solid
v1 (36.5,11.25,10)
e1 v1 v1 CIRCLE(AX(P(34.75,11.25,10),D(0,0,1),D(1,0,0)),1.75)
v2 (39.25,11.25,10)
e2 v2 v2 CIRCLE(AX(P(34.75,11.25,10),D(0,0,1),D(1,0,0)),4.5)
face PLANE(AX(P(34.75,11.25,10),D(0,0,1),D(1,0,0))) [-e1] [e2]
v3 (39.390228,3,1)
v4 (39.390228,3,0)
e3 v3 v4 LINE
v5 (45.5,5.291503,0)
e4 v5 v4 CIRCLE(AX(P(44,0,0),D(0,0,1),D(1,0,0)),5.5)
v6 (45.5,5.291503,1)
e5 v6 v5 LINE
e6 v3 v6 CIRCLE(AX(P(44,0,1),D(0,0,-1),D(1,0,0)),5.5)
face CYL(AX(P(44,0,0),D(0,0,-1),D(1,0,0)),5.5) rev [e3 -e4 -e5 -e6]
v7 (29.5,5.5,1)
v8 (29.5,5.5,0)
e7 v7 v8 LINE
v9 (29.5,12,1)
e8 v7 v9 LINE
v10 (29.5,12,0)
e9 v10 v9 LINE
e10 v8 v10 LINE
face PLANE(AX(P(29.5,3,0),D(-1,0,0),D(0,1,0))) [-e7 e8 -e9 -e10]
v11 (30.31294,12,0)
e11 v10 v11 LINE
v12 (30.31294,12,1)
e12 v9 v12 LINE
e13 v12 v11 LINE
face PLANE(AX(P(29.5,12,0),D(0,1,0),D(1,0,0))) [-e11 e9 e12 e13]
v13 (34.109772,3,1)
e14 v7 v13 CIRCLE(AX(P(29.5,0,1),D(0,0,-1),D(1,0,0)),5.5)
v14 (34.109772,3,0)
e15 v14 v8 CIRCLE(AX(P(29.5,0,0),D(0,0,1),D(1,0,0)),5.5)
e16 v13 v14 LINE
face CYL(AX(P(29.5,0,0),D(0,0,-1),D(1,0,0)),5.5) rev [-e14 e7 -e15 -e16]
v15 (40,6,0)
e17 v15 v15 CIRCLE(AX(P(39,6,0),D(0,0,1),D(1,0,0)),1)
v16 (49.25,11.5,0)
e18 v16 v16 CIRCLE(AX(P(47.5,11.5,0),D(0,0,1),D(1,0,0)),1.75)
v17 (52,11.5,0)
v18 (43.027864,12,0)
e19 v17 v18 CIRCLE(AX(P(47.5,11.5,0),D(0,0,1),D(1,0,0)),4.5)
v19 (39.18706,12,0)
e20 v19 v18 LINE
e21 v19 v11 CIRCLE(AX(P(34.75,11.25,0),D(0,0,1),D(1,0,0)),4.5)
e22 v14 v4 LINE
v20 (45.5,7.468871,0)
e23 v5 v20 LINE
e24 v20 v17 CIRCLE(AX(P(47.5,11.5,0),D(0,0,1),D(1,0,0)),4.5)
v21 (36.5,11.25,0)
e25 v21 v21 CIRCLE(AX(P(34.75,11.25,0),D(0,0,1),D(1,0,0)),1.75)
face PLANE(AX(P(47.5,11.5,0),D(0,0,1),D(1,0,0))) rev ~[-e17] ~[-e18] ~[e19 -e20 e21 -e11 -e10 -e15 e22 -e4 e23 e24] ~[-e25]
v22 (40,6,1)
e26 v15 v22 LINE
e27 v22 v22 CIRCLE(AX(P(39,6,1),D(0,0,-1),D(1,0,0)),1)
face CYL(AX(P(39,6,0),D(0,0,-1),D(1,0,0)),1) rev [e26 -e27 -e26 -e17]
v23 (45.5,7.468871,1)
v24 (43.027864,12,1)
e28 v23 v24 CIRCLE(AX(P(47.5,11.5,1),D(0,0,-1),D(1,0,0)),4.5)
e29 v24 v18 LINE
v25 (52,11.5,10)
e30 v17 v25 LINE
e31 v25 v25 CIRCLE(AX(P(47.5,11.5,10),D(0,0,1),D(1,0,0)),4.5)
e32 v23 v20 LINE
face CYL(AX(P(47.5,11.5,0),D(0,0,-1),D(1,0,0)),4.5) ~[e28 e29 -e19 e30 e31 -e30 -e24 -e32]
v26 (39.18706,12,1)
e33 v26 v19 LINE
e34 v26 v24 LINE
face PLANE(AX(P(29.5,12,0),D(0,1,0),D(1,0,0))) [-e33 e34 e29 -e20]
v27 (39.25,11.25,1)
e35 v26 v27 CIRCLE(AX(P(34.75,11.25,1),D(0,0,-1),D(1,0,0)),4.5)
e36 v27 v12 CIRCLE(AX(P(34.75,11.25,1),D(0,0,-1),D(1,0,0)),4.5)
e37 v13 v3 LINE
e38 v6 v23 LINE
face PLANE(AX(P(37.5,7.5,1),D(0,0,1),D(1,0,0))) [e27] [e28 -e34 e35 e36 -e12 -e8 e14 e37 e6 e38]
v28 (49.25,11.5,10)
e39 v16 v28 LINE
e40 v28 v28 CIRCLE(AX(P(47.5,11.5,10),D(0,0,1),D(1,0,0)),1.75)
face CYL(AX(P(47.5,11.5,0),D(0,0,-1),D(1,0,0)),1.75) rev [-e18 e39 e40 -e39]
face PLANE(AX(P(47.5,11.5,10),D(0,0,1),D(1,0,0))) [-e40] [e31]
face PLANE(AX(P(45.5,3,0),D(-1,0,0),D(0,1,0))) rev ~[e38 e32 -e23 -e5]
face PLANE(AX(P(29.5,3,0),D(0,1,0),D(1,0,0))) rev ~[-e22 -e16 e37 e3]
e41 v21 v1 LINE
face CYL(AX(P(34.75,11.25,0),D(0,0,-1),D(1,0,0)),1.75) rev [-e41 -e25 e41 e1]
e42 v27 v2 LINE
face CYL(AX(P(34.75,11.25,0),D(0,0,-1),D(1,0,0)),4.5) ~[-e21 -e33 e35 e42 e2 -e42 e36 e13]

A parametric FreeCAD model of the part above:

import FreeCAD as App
import Part
import Sketcher

doc = App.newDocument("Part")
body = doc.addObject("PartDesign::Body", "Body")

sketch1 = body.newObject("Sketcher::SketchObject", "Sketch")
sketch1.AttachmentSupport = (doc.getObject("XY_Plane"), [""])
sketch1.MapMode = "FlatFace"
sketch1.addGeometry(Part.Circle(App.Vector(9, 6, 0), App.Vector(0, 0, 1), 1), False)
sketch1.addConstraint([
    Sketcher.Constraint("Diameter", 0, 2.0),
    Sketcher.Constraint("DistanceX", -1, 1, 0, 3, 9.0),
    Sketcher.Constraint("DistanceY", -1, 1, 0, 3, 6.0),
])
pad1 = body.newObject("PartDesign::Pad", "Pad")
pad1.Profile = sketch1
pad1.Length = 10
body2 = doc.addObject("PartDesign::Body", "Body001")

sketch2 = body2.newObject("Sketcher::SketchObject", "Sketch001")
sketch2.AttachmentSupport = (doc.getObject("XY_Plane001"), [""])
sketch2.MapMode = "FlatFace"
sketch2.addGeometry(Part.Circle(App.Vector(14, 0, 0), App.Vector(0, 0, 1), 6), False)
sketch2.addConstraint([
    Sketcher.Constraint("PointOnObject", 0, 3, -1),
    Sketcher.Constraint("Diameter", 0, 11.0),
    Sketcher.Constraint("DistanceX", -1, 1, 0, 3, 14.0),
])
pad2 = body2.newObject("PartDesign::Pad", "Pad001")
pad2.Profile = sketch2
pad2.Length = 10
body3 = doc.addObject("PartDesign::Body", "Body002")

sketch3 = body3.newObject("Sketcher::SketchObject", "Sketch002")
sketch3.AttachmentSupport = (doc.getObject("XY_Plane002"), [""])
sketch3.MapMode = "FlatFace"
sketch3.addGeometry(Part.Circle(App.Vector(17.5, 11.5, 0), App.Vector(0, 0, 1), 1.8), False)
sketch3.addConstraint([
    Sketcher.Constraint("Diameter", 0, 3.5),
    Sketcher.Constraint("DistanceX", -1, 1, 0, 3, 17.5),
    Sketcher.Constraint("DistanceY", -1, 1, 0, 3, 11.5),
])
pad3 = body3.newObject("PartDesign::Pad", "Pad002")
pad3.Profile = sketch3
pad3.Length = 10
body4 = doc.addObject("PartDesign::Body", "Body003")

sketch4 = body4.newObject("Sketcher::SketchObject", "Sketch003")
sketch4.AttachmentSupport = (doc.getObject("XY_Plane003"), [""])
sketch4.MapMode = "FlatFace"
sketch4.addGeometry(Part.Circle(App.Vector(4.8, 11.2, 0), App.Vector(0, 0, 1), 1.8), False)
sketch4.addConstraint([
    Sketcher.Constraint("Diameter", 0, 3.5),
    Sketcher.Constraint("DistanceX", -1, 1, 0, 3, 4.75),
    Sketcher.Constraint("DistanceY", -1, 1, 0, 3, 11.25),
])
pad4 = body4.newObject("PartDesign::Pad", "Pad003")
pad4.Profile = sketch4
pad4.Length = 10
body5 = doc.addObject("PartDesign::Body", "Body004")
body5.AllowCompound = True

sketch5 = body5.newObject("Sketcher::SketchObject", "Sketch004")
sketch5.AttachmentSupport = (doc.getObject("XY_Plane004"), [""])
sketch5.MapMode = "FlatFace"
sketch5.addGeometry(Part.Circle(App.Vector(0, 0, 0), App.Vector(0, 0, 1), 6), False)
sketch5.addConstraint([
    Sketcher.Constraint("PointOnObject", 0, 3, -1),
    Sketcher.Constraint("Diameter", 0, 11.0),
    Sketcher.Constraint("DistanceX", 0, 3, -1, 1, 0.5),
])
pad5 = body5.newObject("PartDesign::Pad", "Pad004")
pad5.Profile = sketch5
pad5.Length = 10
doc.recompute()

boolean = body5.newObject("PartDesign::Boolean", "Boolean")
boolean.Type = "Fuse"
boolean.addObjects([body])
doc.recompute()

boolean2 = body5.newObject("PartDesign::Boolean", "Boolean001")
boolean2.Type = "Fuse"
boolean2.addObjects([body2])
doc.recompute()

boolean3 = body5.newObject("PartDesign::Boolean", "Boolean002")
boolean3.Type = "Fuse"
boolean3.addObjects([body3])
doc.recompute()

boolean4 = body5.newObject("PartDesign::Boolean", "Boolean003")
boolean4.Type = "Fuse"
boolean4.addObjects([body4])
body6 = doc.addObject("PartDesign::Body", "Body005")

sketch6 = body6.newObject("Sketcher::SketchObject", "Sketch005")
sketch6.AttachmentSupport = (doc.getObject("XY_Plane005"), [""])
sketch6.MapMode = "FlatFace"
sketch6.addGeometry(Part.Circle(App.Vector(17.5, 11.5, 0), App.Vector(0, 0, 1), 4.5), False)
sketch6.addConstraint([
    Sketcher.Constraint("Diameter", 0, 9.0),
    Sketcher.Constraint("DistanceX", -1, 1, 0, 3, 17.5),
    Sketcher.Constraint("DistanceY", -1, 1, 0, 3, 11.5),
])
pad6 = body6.newObject("PartDesign::Pad", "Pad005")
pad6.Profile = sketch6
pad6.Length = 10
body7 = doc.addObject("PartDesign::Body", "Body006")

sketch7 = body7.newObject("Sketcher::SketchObject", "Sketch006")
sketch7.AttachmentSupport = (doc.getObject("XY_Plane006"), [""])
sketch7.MapMode = "FlatFace"
sketch7.addGeometry(Part.Circle(App.Vector(4.8, 11.2, 0), App.Vector(0, 0, 1), 4.5), False)
sketch7.addConstraint([
    Sketcher.Constraint("Diameter", 0, 9.0),
    Sketcher.Constraint("DistanceX", -1, 1, 0, 3, 4.75),
    Sketcher.Constraint("DistanceY", -1, 1, 0, 3, 11.25),
])
pad7 = body7.newObject("PartDesign::Pad", "Pad006")
pad7.Profile = sketch7
pad7.Length = 10
body8 = doc.addObject("PartDesign::Body", "Body007")

sketch8 = body8.newObject("Sketcher::SketchObject", "Sketch007")
sketch8.AttachmentSupport = (doc.getObject("XY_Plane007"), [""])
sketch8.MapMode = "FlatFace"
sketch8.addGeometry([
    Part.LineSegment(App.Vector(0, 12, 0), App.Vector(0, 3, 0)),
    Part.LineSegment(App.Vector(0, 3, 0), App.Vector(16, 3, 0)),
    Part.LineSegment(App.Vector(16, 3, 0), App.Vector(16, 12, 0)),
    Part.LineSegment(App.Vector(16, 12, 0), App.Vector(0, 12, 0)),
], False)
sketch8.addConstraint([
    Sketcher.Constraint("Coincident", 0, 2, 1, 1),
    Sketcher.Constraint("Coincident", 1, 2, 2, 1),
    Sketcher.Constraint("Coincident", 2, 2, 3, 1),
    Sketcher.Constraint("Coincident", 3, 2, 0, 1),
    Sketcher.Constraint("Vertical", 0),
    Sketcher.Constraint("Horizontal", 1),
    Sketcher.Constraint("Vertical", 2),
    Sketcher.Constraint("Horizontal", 3),
    Sketcher.Constraint("DistanceX", 1, 1, 1, 2, 16.0),
    Sketcher.Constraint("DistanceY", 0, 2, 0, 1, 9.0),
    Sketcher.Constraint("DistanceY", -1, 1, 0, 2, 3.0),
    Sketcher.Constraint("DistanceX", 0, 2, -1, 1, 0.5),
])
pad8 = body8.newObject("PartDesign::Pad", "Pad007")
pad8.Profile = sketch8
pad8.Length = 1
doc.recompute()

boolean5 = body8.newObject("PartDesign::Boolean", "Boolean004")
boolean5.Type = "Fuse"
boolean5.addObjects([body6])
doc.recompute()

boolean6 = body8.newObject("PartDesign::Boolean", "Boolean005")
boolean6.Type = "Fuse"
boolean6.addObjects([body7])
doc.recompute()

boolean7 = body8.newObject("PartDesign::Boolean", "Boolean006")
boolean7.Type = "Cut"
boolean7.addObjects([body5])
body9 = doc.addObject("PartDesign::Body", "Body008")
doc.recompute()

body8.Placement = App.Placement(App.Vector(30, 0, 0), App.Rotation(App.Vector(0, 0, 1), 0))
boolean8 = body9.newObject("PartDesign::Boolean", "Boolean007")
boolean8.Type = "Fuse"
boolean8.addObjects([body8])

doc.recompute()
